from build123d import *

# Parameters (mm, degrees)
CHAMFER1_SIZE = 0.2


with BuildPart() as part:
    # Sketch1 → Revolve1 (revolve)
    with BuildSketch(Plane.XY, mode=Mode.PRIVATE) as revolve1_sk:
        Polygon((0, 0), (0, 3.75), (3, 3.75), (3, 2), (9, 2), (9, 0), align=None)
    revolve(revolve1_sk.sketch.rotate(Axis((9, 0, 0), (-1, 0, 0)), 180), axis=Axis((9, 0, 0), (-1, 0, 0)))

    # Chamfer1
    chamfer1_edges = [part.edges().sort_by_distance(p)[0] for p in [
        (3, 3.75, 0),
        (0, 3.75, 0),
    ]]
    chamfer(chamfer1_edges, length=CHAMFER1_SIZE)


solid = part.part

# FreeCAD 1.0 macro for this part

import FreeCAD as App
import Part
import Sketcher
from FreeCAD import Vector
Q = App.Units.Quantity


def edges_at(feature, points):
    """Names of the edges that pass closest to the given points."""
    edges = feature.Shape.Edges
    near = lambda p: min(range(len(edges)), key=lambda i: edges[i].distToShape(Part.Vertex(*p))[0])
    return sorted({f"Edge{near(p) + 1}" for p in points})


def add_polygon(sketch, points):
    """Adds a closed chain of lines whose ends are joined by coincident constraints."""
    first, n = sketch.GeometryCount, len(points)
    for a, b in zip(points, points[1:] + points[:1]):
        sketch.addGeometry(Part.LineSegment(App.Vector(*a, 0), App.Vector(*b, 0)), False)
    for i in range(n):
        sketch.addConstraint(Sketcher.Constraint("Coincident", first + i, 2, first + (i + 1) % n, 1))

doc = App.newDocument("Part")
params = doc.addObject("Spreadsheet::Sheet", "Params")
for row, (alias, value) in enumerate([
    ("sketch1_width", "9 mm"),
    ("sketch1_width2", "6 mm"),
    ("sketch1_height", "2 mm"),
    ("sketch1_height2", "3.75 mm"),
    ("revolution_angle", "360 deg"),
    ("chamfer_size", "0.2 mm"),
], start=1):
    params.set(f"A{row}", alias)
    params.set(f"B{row}", "=" + value)
    params.setAlias(f"B{row}", alias)

body = doc.addObject("PartDesign::Body", "Body")

# Sketch on XY plane
sketch1 = body.newObject("Sketcher::SketchObject", "Sketch")
sketch1.AttachmentSupport = (doc.getObject("XY_Plane"), [""])
sketch1.MapMode = "FlatFace"
add_polygon(sketch1, [(0, 3.8), (0, 0), (9, 0), (9, 2), (3, 2), (3, 3.8)])  # lines 0-5
sketch1.addConstraint([
    Sketcher.Constraint("Vertical", 0),
    Sketcher.Constraint("Horizontal", 1),
    Sketcher.Constraint("Vertical", 2),
    Sketcher.Constraint("Horizontal", 3),
    Sketcher.Constraint("Vertical", 4),
    Sketcher.Constraint("Horizontal", 5),
    Sketcher.Constraint("Coincident", 0, 2, -1, 1),
    Sketcher.Constraint("DistanceX", 1, 1, 1, 2, Q("9 mm")),
    Sketcher.Constraint("DistanceX", 3, 2, 3, 1, Q("6 mm")),
    Sketcher.Constraint("DistanceY", 2, 1, 2, 2, Q("2 mm")),
    Sketcher.Constraint("DistanceY", 0, 2, 0, 1, Q("3.75 mm")),
])
sketch1.setExpression("Constraints[13]", "Params.sketch1_width")
sketch1.setExpression("Constraints[14]", "Params.sketch1_width2")
sketch1.setExpression("Constraints[15]", "Params.sketch1_height")
sketch1.setExpression("Constraints[16]", "Params.sketch1_height2")
revolution = body.newObject("PartDesign::Revolution", "Revolution")
revolution.Profile = sketch1
revolution.ReferenceAxis = (sketch1, ["H_Axis"])
revolution.setExpression("Angle", "Params.revolution_angle")
doc.recompute()

chamfer = body.newObject("PartDesign::Chamfer", "Chamfer")
chamfer.Base = (revolution, edges_at(revolution, [(3, 3.75, 0), (0, 3.75, 0)]))
chamfer.setExpression("Size", "Params.chamfer_size")

doc.recompute()
